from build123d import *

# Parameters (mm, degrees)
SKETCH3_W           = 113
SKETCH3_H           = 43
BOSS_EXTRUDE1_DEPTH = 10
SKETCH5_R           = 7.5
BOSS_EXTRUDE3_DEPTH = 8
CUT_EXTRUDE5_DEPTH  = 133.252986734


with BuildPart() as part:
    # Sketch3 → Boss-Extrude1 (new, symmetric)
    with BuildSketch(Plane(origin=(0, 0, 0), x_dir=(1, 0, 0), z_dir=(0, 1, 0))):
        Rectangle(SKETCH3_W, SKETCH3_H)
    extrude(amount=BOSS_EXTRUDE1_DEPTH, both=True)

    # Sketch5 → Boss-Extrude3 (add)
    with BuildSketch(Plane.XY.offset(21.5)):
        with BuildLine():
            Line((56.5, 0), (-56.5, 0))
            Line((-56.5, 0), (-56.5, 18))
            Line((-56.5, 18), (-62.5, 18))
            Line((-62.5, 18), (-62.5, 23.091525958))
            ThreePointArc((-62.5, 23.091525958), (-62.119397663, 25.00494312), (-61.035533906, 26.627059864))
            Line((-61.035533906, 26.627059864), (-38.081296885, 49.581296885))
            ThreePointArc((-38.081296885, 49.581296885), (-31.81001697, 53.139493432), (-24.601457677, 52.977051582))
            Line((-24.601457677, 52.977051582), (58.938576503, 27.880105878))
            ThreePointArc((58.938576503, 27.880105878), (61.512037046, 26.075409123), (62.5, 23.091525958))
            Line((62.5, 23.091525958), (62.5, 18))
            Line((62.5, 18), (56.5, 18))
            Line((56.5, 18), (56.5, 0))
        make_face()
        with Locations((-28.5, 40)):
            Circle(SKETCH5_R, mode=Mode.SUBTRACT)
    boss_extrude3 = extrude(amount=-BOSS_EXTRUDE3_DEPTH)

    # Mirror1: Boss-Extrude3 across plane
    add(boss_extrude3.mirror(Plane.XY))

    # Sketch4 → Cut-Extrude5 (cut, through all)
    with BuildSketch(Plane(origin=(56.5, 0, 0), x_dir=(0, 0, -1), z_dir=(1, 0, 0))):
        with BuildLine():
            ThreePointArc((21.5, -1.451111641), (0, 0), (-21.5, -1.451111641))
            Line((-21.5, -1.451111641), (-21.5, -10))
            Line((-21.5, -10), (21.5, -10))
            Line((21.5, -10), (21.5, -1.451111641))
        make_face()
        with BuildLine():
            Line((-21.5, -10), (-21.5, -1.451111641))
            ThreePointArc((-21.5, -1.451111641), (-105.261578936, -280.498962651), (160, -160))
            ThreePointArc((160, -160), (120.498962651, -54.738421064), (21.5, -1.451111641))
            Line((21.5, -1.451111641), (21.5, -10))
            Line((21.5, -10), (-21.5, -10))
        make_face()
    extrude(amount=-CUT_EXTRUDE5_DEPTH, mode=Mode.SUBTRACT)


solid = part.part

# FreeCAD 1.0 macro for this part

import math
import FreeCAD as App
import Part
import Sketcher

V = App.Vector
Q = App.Units.Quantity


def add_polygon(sketch, points):
    """Adds a closed chain of lines whose ends are joined by coincident constraints."""
    first, n = sketch.GeometryCount, len(points)
    for a, b in zip(points, points[1:] + points[:1]):
        sketch.addGeometry(Part.LineSegment(App.Vector(*a, 0), App.Vector(*b, 0)), False)
    for i in range(n):
        sketch.addConstraint(Sketcher.Constraint("Coincident", first + i, 2, first + (i + 1) % n, 1))

doc = App.newDocument("Part")
body = doc.addObject("PartDesign::Body", "Body")

sketch1 = body.newObject("Sketcher::SketchObject", "Sketch")
sketch1.AttachmentSupport = (doc.getObject("XZ_Plane"), [""])
sketch1.MapMode = "FlatFace"
add_polygon(sketch1, [(-56, -22), (-56, 22), (56, 22), (56, -22)])
sketch1.addConstraint(Sketcher.Constraint("Vertical", 0))
sketch1.addConstraint(Sketcher.Constraint("Horizontal", 1))
sketch1.addConstraint(Sketcher.Constraint("Vertical", 2))
sketch1.addConstraint(Sketcher.Constraint("Horizontal", 3))
sketch1.addConstraint(Sketcher.Constraint("Symmetric", 0, 2, 2, 2, -1, 1))
sketch1.addConstraint(Sketcher.Constraint("DistanceX", 1, 1, 1, 2, Q("113 mm")))
sketch1.addConstraint(Sketcher.Constraint("DistanceY", 0, 1, 0, 2, Q("43 mm")))
pad1 = body.newObject("PartDesign::Pad", "Pad")
pad1.Profile = sketch1
pad1.Length = 20
pad1.Midplane = True

sketch2 = body.newObject("Sketcher::SketchObject", "Sketch001")
sketch2.AttachmentSupport = (doc.getObject("XY_Plane"), [""])
sketch2.MapMode = "FlatFace"
sketch2.AttachmentOffset = App.Placement(V(0, 0, 21.5), App.Rotation())
sketch2.addGeometry(Part.LineSegment(V(-56.5, 0, 0), V(56.5, 0, 0)), False)
sketch2.addGeometry(Part.LineSegment(V(56.5, 0, 0), V(56.5, 18, 0)), False)
sketch2.addGeometry(Part.LineSegment(V(56.5, 18, 0), V(62.5, 18, 0)), False)
sketch2.addGeometry(Part.LineSegment(V(62.5, 18, 0), V(62.5, 23.1, 0)), False)
sketch2.addGeometry(Part.ArcOfCircle(Part.Circle(V(57.5, 23.1, 0), V(0, 0, 1), 5), math.radians(0), math.radians(73)), False)
sketch2.addGeometry(Part.LineSegment(V(58.9, 27.9, 0), V(-24.6, 53, 0)), False)
sketch2.addGeometry(Part.ArcOfCircle(Part.Circle(V(-28.5, 40, 0), V(0, 0, 1), 13.6), math.radians(73), math.radians(135)), False)
sketch2.addGeometry(Part.LineSegment(V(-38.1, 49.6, 0), V(-61, 26.6, 0)), False)
sketch2.addGeometry(Part.ArcOfCircle(Part.Circle(V(-57.5, 23.1, 0), V(0, 0, 1), 5), math.radians(135), math.radians(180)), False)
sketch2.addGeometry(Part.LineSegment(V(-62.5, 23.1, 0), V(-62.5, 18, 0)), False)
sketch2.addGeometry(Part.LineSegment(V(-62.5, 18, 0), V(-56.5, 18, 0)), False)
sketch2.addGeometry(Part.LineSegment(V(-56.5, 18, 0), V(-56.5, 0, 0)), False)
sketch2.addGeometry(Part.Circle(V(-28.5, 40, 0), V(0, 0, 1), 7.5), False)
sketch2.addConstraint(Sketcher.Constraint("Coincident", 0, 2, 1, 1))
sketch2.addConstraint(Sketcher.Constraint("Coincident", 1, 2, 2, 1))
sketch2.addConstraint(Sketcher.Constraint("Coincident", 2, 2, 3, 1))
sketch2.addConstraint(Sketcher.Constraint("Tangent", 3, 2, 4, 1))
sketch2.addConstraint(Sketcher.Constraint("Tangent", 4, 2, 5, 1))
sketch2.addConstraint(Sketcher.Constraint("Tangent", 5, 2, 6, 1))
sketch2.addConstraint(Sketcher.Constraint("Tangent", 6, 2, 7, 1))
sketch2.addConstraint(Sketcher.Constraint("Tangent", 7, 2, 8, 1))
sketch2.addConstraint(Sketcher.Constraint("Tangent", 8, 2, 9, 1))
sketch2.addConstraint(Sketcher.Constraint("Coincident", 9, 2, 10, 1))
sketch2.addConstraint(Sketcher.Constraint("Coincident", 10, 2, 11, 1))
sketch2.addConstraint(Sketcher.Constraint("Coincident", 11, 2, 0, 1))
sketch2.addConstraint(Sketcher.Constraint("Horizontal", 0))
sketch2.addConstraint(Sketcher.Constraint("Vertical", 1))
sketch2.addConstraint(Sketcher.Constraint("Horizontal", 2))
sketch2.addConstraint(Sketcher.Constraint("Vertical", 3))
sketch2.addConstraint(Sketcher.Constraint("Vertical", 9))
sketch2.addConstraint(Sketcher.Constraint("Horizontal", 10))
sketch2.addConstraint(Sketcher.Constraint("Vertical", 11))
sketch2.addConstraint(Sketcher.Constraint("Coincident", 12, 3, 6, 3))
sketch2.addConstraint(Sketcher.Constraint("Equal", 4, 8))
sketch2.addConstraint(Sketcher.Constraint("Symmetric", 0, 2, 11, 2, -1, 1))
sketch2.addConstraint(Sketcher.Constraint("Symmetric", 4, 3, 8, 3, -2))
sketch2.addConstraint(Sketcher.Constraint("Horizontal", 2, 2, 9, 2))
sketch2.addConstraint(Sketcher.Constraint("Diameter", 12, Q("15 mm")))
sketch2.addConstraint(Sketcher.Constraint("Radius", 4, Q("5 mm")))
sketch2.addConstraint(Sketcher.Constraint("DistanceX", 0, 1, 0, 2, Q("113 mm")))
sketch2.addConstraint(Sketcher.Constraint("DistanceX", 2, 1, 2, 2, Q("6 mm")))
sketch2.addConstraint(Sketcher.Constraint("DistanceY", 1, 1, 1, 2, Q("18 mm")))
sketch2.addConstraint(Sketcher.Constraint("Angle", 7, Q("-135 deg")))
sketch2.addConstraint(Sketcher.Constraint("Radius", 6, Q("13.55 mm")))
sketch2.addConstraint(Sketcher.Constraint("DistanceY", -1, 1, 6, 3, Q("40 mm")))
sketch2.addConstraint(Sketcher.Constraint("DistanceX", 6, 3, 4, 3, Q("86 mm")))
pad2 = body.newObject("PartDesign::Pad", "Pad001")
pad2.Profile = sketch2
pad2.Length = 8
pad2.Reversed = True
doc.recompute()

mirrored = body.newObject("PartDesign::Mirrored", "Mirrored")
mirrored.Originals = [pad2]
mirrored.MirrorPlane = (doc.getObject("XY_Plane"), [""])
body.Tip = mirrored

sketch3 = body.newObject("Sketcher::SketchObject", "Sketch002")
sketch3.AttachmentSupport = (doc.getObject("YZ_Plane"), [""])
sketch3.MapMode = "FlatFace"
sketch3.AttachmentOffset = App.Placement(V(0, 0, 56.5), App.Rotation())
sketch3.addGeometry(Part.ArcOfCircle(Part.Circle(V(-160, 0, 0), V(0, 0, 1), 160), math.radians(-7.72), math.radians(7.72)), False)
sketch3.addGeometry(Part.ArcOfCircle(Part.Circle(V(-160, 0, 0), V(0, 0, 1), 160), math.radians(8), math.radians(270)), False)
sketch3.addGeometry(Part.ArcOfCircle(Part.Circle(V(-160, 0, 0), V(0, 0, 1), 160), math.radians(-90), math.radians(-8)), False)
sketch3.addConstraint(Sketcher.Constraint("Tangent", 0, 2, 1, 1))
sketch3.addConstraint(Sketcher.Constraint("Tangent", 1, 2, 2, 1))
sketch3.addConstraint(Sketcher.Constraint("Coincident", 2, 2, 0, 1))
sketch3.addConstraint(Sketcher.Constraint("Equal", 0, 1))
sketch3.addConstraint(Sketcher.Constraint("Symmetric", 0, 2, 2, 2, -1))
sketch3.addConstraint(Sketcher.Constraint("Vertical", 2, 3, 1, 2))
sketch3.addConstraint(Sketcher.Constraint("Radius", 0, Q("160 mm")))
sketch3.addConstraint(Sketcher.Constraint("DistanceX", 0, 3, -1, 1, Q("160 mm")))
sketch3.addConstraint(Sketcher.Constraint("DistanceY", 2, 2, 0, 2, Q("43 mm")))
pocket1 = body.newObject("PartDesign::Pocket", "Pocket")
pocket1.Profile = sketch3
pocket1.Type = "ThroughAll"

doc.recompute()
